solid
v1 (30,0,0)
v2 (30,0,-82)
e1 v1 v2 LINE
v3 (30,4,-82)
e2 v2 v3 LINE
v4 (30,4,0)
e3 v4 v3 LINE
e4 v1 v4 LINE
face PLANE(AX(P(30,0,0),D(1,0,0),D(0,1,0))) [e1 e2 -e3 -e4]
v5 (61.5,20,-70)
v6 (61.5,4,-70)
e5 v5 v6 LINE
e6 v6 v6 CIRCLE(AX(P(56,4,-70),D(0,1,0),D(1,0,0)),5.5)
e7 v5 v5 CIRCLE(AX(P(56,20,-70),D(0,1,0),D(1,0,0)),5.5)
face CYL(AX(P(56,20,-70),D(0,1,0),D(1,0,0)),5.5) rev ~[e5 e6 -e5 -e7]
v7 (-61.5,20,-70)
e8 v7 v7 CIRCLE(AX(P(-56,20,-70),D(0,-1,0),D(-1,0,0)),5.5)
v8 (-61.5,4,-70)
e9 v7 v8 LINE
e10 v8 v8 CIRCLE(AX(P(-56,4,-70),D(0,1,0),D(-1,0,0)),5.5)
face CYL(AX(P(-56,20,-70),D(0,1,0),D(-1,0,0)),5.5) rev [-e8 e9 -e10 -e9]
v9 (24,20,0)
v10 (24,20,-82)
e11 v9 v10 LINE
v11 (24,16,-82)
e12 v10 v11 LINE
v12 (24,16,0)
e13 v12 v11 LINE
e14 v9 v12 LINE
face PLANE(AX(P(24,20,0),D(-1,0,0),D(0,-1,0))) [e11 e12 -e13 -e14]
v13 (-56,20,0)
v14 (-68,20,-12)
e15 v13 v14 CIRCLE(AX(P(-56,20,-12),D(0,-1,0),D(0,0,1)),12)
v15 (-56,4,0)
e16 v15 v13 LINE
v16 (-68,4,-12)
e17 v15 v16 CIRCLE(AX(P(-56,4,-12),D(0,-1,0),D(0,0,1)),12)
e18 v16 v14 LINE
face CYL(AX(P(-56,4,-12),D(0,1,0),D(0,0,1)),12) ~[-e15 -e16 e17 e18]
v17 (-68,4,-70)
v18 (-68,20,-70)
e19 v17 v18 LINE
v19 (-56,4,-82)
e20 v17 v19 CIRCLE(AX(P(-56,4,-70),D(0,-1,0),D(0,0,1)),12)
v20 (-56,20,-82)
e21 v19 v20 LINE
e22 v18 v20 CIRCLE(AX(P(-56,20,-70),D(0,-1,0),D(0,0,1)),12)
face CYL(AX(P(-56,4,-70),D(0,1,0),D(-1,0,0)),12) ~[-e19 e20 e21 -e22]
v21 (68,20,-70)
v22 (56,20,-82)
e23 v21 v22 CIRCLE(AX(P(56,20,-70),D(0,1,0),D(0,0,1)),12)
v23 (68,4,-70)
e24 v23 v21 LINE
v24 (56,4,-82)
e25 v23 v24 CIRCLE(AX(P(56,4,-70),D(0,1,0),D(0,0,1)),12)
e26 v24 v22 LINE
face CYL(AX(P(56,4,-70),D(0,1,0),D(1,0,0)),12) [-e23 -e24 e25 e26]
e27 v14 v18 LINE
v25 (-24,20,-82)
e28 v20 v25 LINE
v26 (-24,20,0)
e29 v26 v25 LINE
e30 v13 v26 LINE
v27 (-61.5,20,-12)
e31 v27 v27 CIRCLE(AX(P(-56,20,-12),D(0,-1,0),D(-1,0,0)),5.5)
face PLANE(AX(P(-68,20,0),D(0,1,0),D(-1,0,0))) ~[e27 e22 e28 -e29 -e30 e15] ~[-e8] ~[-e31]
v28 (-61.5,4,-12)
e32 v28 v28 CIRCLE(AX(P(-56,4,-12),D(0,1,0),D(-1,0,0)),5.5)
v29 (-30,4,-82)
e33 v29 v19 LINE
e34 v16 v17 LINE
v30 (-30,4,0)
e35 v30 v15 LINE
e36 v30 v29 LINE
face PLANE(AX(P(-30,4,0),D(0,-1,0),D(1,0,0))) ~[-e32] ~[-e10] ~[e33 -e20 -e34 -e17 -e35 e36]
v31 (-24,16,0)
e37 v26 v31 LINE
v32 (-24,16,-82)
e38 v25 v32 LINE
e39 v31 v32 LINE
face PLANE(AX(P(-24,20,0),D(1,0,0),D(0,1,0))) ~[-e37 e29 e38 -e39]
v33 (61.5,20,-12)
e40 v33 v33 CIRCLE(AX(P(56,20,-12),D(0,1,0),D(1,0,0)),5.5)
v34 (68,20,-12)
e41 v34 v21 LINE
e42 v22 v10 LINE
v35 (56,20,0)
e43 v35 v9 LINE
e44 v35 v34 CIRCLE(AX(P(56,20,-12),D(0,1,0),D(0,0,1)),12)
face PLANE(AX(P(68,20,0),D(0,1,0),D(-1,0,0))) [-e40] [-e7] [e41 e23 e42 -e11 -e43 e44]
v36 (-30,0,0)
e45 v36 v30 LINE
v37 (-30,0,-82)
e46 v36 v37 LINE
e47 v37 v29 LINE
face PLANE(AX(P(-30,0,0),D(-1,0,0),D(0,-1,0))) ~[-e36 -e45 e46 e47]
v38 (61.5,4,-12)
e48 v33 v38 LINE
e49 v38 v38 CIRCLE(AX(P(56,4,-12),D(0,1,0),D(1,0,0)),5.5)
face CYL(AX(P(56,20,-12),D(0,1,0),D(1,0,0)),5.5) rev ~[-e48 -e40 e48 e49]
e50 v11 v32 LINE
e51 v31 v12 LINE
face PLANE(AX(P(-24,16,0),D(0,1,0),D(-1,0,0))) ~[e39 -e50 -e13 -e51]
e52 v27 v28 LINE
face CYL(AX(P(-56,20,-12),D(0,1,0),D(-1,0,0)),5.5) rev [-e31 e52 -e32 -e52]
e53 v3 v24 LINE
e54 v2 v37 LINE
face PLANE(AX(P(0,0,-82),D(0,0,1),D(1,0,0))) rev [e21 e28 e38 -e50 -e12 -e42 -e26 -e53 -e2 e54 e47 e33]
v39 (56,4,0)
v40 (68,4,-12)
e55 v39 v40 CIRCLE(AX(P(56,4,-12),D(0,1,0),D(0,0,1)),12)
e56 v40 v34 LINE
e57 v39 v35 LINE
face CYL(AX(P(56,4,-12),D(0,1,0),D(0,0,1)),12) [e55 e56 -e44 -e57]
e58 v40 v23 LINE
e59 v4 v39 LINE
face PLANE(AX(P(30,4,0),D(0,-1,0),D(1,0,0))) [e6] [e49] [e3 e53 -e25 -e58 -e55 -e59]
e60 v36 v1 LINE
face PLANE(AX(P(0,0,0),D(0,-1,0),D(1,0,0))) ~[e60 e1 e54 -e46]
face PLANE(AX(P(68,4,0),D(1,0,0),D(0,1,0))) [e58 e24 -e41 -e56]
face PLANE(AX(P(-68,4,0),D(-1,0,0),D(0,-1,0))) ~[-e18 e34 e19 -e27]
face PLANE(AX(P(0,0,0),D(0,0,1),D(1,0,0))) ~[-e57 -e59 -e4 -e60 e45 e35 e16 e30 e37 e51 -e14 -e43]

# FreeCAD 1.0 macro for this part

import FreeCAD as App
import Part
import Sketcher
from FreeCAD import Vector


def edges_at(feature, points):
    """Names of the edges that pass closest to the given points."""
    edges = feature.Shape.Edges
    near = lambda p: min(range(len(edges)), key=lambda i: edges[i].distToShape(Part.Vertex(*p))[0])
    return sorted({f"Edge{near(p) + 1}" for p in points})

doc = App.newDocument("Part")
body = doc.addObject("PartDesign::Body", "Body")

# Sketch on XY plane
sketch1 = body.newObject("Sketcher::SketchObject", "Sketch")
sketch1.AttachmentSupport = (doc.getObject("XY_Plane"), [""])
sketch1.MapMode = "FlatFace"
sketch1.addGeometry(Part.LineSegment(Vector(0, 16, 0), Vector(0, 0, 0)), False)
sketch1.addGeometry(Part.LineSegment(Vector(0, 0, 0), Vector(30, 0, 0)), False)
sketch1.addGeometry(Part.LineSegment(Vector(30, 0, 0), Vector(30, 4, 0)), False)
sketch1.addGeometry(Part.LineSegment(Vector(30, 4, 0), Vector(68, 4, 0)), False)
sketch1.addGeometry(Part.LineSegment(Vector(68, 4, 0), Vector(68, 20, 0)), False)
sketch1.addGeometry(Part.LineSegment(Vector(68, 20, 0), Vector(24, 20, 0)), False)
sketch1.addGeometry(Part.LineSegment(Vector(24, 20, 0), Vector(24, 16, 0)), False)
sketch1.addGeometry(Part.LineSegment(Vector(24, 16, 0), Vector(0, 16, 0)), False)
sketch1.addConstraint(Sketcher.Constraint("Coincident", 0, 2, 1, 1))
sketch1.addConstraint(Sketcher.Constraint("Coincident", 1, 2, 2, 1))
sketch1.addConstraint(Sketcher.Constraint("Coincident", 2, 2, 3, 1))
sketch1.addConstraint(Sketcher.Constraint("Coincident", 3, 2, 4, 1))
sketch1.addConstraint(Sketcher.Constraint("Coincident", 4, 2, 5, 1))
sketch1.addConstraint(Sketcher.Constraint("Coincident", 5, 2, 6, 1))
sketch1.addConstraint(Sketcher.Constraint("Coincident", 6, 2, 7, 1))
sketch1.addConstraint(Sketcher.Constraint("Coincident", 7, 2, 0, 1))
sketch1.addConstraint(Sketcher.Constraint("Vertical", 0))
sketch1.addConstraint(Sketcher.Constraint("Horizontal", 1))
sketch1.addConstraint(Sketcher.Constraint("Vertical", 2))
sketch1.addConstraint(Sketcher.Constraint("Horizontal", 3))
sketch1.addConstraint(Sketcher.Constraint("Vertical", 4))
sketch1.addConstraint(Sketcher.Constraint("Horizontal", 5))
sketch1.addConstraint(Sketcher.Constraint("Vertical", 6))
sketch1.addConstraint(Sketcher.Constraint("Horizontal", 7))
sketch1.addConstraint(Sketcher.Constraint("Coincident", 0, 2, -1, 1))
sketch1.addConstraint(Sketcher.Constraint("Equal", 0, 4))
sketch1.addConstraint(Sketcher.Constraint("DistanceX", 1, 1, 1, 2, 30.0))
sketch1.addConstraint(Sketcher.Constraint("DistanceX", 3, 1, 3, 2, 38.0))
sketch1.addConstraint(Sketcher.Constraint("DistanceX", 5, 2, 5, 1, 44.0))
sketch1.addConstraint(Sketcher.Constraint("DistanceY", 0, 2, 0, 1, 16.0))
sketch1.addConstraint(Sketcher.Constraint("DistanceY", 2, 1, 2, 2, 4.0))
pad1 = body.newObject("PartDesign::Pad", "Pad")
pad1.Profile = sketch1
pad1.Length = 82
pad1.Reversed = True

# Sketch on XZ plane
sketch2 = body.newObject("Sketcher::SketchObject", "Sketch001")
sketch2.AttachmentSupport = (doc.getObject("XZ_Plane"), [""])
sketch2.MapMode = "FlatFace"
sketch2.AttachmentOffset = App.Placement(Vector(0, 0, -20), App.Rotation())
sketch2.addGeometry(Part.Circle(Vector(56, -12, 0), Vector(0, 0, 1), 6), False)
sketch2.addConstraint(Sketcher.Constraint("Diameter", 0, 11.0))
sketch2.addConstraint(Sketcher.Constraint("DistanceY", 0, 3, -1, 1, 12.0))
sketch2.addConstraint(Sketcher.Constraint("DistanceX", -1, 1, 0, 3, 56.0))
pocket1 = body.newObject("PartDesign::Pocket", "Pocket")
pocket1.Profile = sketch2
pocket1.Length = 82
pocket1.Reversed = True

# Sketch on XZ plane
sketch3 = body.newObject("Sketcher::SketchObject", "Sketch002")
sketch3.AttachmentSupport = (doc.getObject("XZ_Plane"), [""])
sketch3.MapMode = "FlatFace"
sketch3.AttachmentOffset = App.Placement(Vector(0, 0, -20), App.Rotation())
sketch3.addGeometry(Part.Circle(Vector(56, -70, 0), Vector(0, 0, 1), 6), False)
sketch3.addConstraint(Sketcher.Constraint("Diameter", 0, 11.0))
sketch3.addConstraint(Sketcher.Constraint("DistanceX", -1, 1, 0, 3, 56.0))
sketch3.addConstraint(Sketcher.Constraint("DistanceY", 0, 3, -1, 1, 70.0))
pocket2 = body.newObject("PartDesign::Pocket", "Pocket001")
pocket2.Profile = sketch3
pocket2.Length = 82
pocket2.Reversed = True
doc.recompute()

fillet = body.newObject("PartDesign::Fillet", "Fillet")
fillet.Base = (pocket2, edges_at(pocket2, [(68, 12, 0)]))
fillet.Radius = 12
doc.recompute()

fillet2 = body.newObject("PartDesign::Fillet", "Fillet001")
fillet2.Base = (fillet, edges_at(fillet, [(68, 12, -82)]))
fillet2.Radius = 12
doc.recompute()

mirrored = body.newObject("PartDesign::Mirrored", "Mirrored")
mirrored.Originals = [pad1, fillet, pocket1, pocket2, fillet2]
mirrored.MirrorPlane = (doc.getObject("YZ_Plane"), [""])
body.Tip = mirrored

doc.recompute()
